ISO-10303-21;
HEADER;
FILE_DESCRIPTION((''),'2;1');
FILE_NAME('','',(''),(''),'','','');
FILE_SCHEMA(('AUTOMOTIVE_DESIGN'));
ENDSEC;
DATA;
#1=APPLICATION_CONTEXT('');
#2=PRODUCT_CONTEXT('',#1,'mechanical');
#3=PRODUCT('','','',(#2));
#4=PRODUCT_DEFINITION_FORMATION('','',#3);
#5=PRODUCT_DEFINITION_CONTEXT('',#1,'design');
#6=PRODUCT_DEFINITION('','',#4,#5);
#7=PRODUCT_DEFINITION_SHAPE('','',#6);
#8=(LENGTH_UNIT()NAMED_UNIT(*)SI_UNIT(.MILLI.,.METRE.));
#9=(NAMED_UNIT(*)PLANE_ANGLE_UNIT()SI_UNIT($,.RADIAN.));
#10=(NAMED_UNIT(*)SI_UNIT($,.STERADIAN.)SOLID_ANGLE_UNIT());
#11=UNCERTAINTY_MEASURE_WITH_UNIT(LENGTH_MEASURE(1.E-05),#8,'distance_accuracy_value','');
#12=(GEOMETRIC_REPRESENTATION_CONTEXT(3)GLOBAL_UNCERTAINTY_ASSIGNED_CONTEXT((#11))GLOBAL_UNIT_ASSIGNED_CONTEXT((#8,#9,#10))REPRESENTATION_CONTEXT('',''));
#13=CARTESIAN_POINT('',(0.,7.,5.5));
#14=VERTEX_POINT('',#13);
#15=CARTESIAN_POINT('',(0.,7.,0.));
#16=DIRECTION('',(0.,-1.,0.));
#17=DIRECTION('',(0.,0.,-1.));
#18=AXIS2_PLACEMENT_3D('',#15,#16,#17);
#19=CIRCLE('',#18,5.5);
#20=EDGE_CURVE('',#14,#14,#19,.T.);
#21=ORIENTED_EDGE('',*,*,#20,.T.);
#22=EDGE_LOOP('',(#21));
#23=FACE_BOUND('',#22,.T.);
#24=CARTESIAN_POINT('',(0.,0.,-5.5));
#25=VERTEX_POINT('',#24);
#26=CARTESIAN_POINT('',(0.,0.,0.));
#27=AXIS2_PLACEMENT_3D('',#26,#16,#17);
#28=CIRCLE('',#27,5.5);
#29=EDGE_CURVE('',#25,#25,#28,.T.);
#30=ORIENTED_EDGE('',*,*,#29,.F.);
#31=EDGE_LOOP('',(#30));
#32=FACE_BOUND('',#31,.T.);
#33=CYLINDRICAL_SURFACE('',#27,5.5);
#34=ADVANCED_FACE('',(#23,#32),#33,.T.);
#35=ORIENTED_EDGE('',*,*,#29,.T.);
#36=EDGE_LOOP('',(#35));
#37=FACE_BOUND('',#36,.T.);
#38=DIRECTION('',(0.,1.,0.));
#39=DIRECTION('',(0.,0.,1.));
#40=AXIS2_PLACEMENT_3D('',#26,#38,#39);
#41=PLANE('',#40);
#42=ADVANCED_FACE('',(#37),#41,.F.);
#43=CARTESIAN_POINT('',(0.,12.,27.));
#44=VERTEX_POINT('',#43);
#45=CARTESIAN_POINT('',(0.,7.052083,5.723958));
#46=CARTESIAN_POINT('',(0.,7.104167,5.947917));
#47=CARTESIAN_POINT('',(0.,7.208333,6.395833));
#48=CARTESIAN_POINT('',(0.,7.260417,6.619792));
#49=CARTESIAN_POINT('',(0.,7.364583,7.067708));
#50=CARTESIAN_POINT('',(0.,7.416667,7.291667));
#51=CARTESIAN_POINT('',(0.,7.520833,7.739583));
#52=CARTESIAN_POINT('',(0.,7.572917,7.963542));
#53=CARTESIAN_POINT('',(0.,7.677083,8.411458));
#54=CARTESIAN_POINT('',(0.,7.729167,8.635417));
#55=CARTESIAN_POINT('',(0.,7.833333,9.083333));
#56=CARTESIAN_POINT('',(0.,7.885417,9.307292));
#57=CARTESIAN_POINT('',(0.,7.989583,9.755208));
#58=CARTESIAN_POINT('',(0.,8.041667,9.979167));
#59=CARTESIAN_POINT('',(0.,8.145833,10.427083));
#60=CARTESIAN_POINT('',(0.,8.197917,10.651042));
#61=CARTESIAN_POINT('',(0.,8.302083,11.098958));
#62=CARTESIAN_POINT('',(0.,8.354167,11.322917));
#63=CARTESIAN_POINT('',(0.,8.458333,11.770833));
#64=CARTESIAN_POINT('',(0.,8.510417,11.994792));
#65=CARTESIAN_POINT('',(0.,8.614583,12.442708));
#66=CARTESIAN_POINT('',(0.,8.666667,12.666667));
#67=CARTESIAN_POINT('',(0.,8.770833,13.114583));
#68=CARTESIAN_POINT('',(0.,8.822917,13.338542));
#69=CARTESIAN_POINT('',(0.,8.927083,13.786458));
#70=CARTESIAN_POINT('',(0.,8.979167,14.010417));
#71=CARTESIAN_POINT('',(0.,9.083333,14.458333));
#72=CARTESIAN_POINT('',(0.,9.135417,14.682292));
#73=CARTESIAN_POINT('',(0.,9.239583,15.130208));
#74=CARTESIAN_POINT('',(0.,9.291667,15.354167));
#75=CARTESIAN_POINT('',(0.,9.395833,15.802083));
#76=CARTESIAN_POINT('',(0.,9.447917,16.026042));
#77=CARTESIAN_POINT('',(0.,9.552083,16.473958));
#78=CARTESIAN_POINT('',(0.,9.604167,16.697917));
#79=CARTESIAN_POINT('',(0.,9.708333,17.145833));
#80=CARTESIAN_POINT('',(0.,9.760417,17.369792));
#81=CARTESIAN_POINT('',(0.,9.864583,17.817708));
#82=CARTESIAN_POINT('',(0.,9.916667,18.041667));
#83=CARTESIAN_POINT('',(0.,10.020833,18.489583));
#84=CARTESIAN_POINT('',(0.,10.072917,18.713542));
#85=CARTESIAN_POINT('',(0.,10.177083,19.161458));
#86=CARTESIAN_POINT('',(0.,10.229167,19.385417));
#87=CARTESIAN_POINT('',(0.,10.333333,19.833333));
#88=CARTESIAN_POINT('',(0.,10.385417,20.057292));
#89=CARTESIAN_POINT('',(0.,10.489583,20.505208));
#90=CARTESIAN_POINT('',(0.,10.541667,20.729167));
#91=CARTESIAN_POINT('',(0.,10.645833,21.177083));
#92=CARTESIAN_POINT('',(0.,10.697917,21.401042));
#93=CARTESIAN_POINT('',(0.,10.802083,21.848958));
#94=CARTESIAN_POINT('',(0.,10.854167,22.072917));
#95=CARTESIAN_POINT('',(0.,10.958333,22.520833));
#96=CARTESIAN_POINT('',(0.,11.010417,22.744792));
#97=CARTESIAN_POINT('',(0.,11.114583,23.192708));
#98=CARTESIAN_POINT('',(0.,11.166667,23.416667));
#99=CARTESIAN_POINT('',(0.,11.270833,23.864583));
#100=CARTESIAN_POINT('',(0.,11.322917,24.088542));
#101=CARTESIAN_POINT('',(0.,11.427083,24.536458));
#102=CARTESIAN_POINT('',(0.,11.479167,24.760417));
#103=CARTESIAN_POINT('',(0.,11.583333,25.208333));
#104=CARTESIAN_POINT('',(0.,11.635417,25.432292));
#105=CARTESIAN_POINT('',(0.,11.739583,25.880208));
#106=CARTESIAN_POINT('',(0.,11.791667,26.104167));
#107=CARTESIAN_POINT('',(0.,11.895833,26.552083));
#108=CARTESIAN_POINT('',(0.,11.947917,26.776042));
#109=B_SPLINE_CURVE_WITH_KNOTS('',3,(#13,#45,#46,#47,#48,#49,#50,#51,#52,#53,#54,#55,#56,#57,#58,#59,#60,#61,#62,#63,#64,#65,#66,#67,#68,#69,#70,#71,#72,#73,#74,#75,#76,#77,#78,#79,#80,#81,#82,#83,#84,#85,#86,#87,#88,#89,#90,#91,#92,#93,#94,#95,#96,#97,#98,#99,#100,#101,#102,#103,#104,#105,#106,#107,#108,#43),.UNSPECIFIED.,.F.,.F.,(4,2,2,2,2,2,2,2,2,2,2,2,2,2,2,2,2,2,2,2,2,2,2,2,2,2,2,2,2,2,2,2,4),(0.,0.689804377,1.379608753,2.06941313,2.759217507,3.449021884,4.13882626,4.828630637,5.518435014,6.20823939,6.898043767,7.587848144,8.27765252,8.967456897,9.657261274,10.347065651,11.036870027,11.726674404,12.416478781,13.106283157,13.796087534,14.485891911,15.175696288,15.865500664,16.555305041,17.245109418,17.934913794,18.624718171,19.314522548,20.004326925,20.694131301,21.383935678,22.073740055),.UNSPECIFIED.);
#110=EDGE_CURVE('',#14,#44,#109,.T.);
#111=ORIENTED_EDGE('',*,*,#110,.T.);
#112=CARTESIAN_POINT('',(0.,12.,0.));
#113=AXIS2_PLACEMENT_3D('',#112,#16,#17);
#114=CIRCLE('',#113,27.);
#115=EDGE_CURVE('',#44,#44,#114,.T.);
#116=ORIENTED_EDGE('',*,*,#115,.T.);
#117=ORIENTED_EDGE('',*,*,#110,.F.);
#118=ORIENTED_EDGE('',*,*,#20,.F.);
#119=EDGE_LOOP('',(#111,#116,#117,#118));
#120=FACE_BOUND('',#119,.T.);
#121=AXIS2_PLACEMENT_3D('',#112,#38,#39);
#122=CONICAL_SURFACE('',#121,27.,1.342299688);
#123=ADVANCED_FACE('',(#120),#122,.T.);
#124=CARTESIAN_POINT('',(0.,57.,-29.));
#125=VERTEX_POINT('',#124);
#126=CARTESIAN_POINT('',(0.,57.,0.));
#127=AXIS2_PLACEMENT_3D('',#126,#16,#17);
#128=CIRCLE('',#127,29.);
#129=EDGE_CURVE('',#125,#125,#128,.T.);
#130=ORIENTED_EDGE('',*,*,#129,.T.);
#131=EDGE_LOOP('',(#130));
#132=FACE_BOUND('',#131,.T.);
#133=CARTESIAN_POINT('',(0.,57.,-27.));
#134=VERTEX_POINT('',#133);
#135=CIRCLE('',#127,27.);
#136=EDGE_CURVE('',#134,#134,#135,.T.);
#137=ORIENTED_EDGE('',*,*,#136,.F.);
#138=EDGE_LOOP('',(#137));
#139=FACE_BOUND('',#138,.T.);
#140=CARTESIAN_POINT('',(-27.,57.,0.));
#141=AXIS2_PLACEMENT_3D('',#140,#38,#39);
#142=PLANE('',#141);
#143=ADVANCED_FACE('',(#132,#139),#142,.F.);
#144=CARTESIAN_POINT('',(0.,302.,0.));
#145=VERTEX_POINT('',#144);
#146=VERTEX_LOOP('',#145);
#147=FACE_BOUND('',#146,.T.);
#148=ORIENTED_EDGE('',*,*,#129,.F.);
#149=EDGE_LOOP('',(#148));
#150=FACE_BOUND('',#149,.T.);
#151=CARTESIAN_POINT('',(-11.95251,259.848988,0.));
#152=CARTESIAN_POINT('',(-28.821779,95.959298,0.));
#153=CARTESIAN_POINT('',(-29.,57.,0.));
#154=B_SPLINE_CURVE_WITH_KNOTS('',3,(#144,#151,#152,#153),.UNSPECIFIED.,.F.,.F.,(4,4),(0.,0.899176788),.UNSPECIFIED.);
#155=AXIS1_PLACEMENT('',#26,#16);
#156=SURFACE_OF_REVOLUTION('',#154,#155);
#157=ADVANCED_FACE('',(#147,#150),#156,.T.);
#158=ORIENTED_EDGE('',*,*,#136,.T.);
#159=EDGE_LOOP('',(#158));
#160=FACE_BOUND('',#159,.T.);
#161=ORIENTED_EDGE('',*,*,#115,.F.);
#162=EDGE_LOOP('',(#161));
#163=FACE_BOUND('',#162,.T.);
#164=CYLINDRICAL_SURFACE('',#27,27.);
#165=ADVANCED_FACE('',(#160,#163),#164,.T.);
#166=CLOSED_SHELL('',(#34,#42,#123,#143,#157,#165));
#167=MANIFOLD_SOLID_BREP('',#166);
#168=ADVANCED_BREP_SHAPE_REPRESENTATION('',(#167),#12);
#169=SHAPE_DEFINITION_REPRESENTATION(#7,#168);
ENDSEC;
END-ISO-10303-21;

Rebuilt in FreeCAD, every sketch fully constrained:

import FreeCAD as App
import Part
import Sketcher

V = App.Vector

doc = App.newDocument("Part")
body = doc.addObject("PartDesign::Body", "Body")

# Sketch on XY plane
sketch1 = body.newObject("Sketcher::SketchObject", "Sketch")
sketch1.AttachmentSupport = (doc.getObject("XY_Plane"), [""])
sketch1.MapMode = "FlatFace"
sketch1.addGeometry(Part.LineSegment(V(-5.5, 0, 0), V(0, 0, 0)), False)
sketch1.addGeometry(Part.LineSegment(V(0, 0, 0), V(0, 302, 0)), False)
sketch1.addGeometry(Part.BSplineCurve([V(-29, 57, 0), V(-28.821779, 95.959298, 0), V(-11.95251, 259.848988, 0), V(0, 302, 0)], [4, 4], [0, 0.899176788], False, 3, [1, 1, 1, 1], False), False)
sketch1.addGeometry(Part.LineSegment(V(-29, 57, 0), V(-27, 57, 0)), False)
sketch1.addGeometry(Part.LineSegment(V(-27, 57, 0), V(-27, 12, 0)), False)
sketch1.addGeometry(Part.LineSegment(V(-27, 12, 0), V(-5.5, 7, 0)), False)
sketch1.addGeometry(Part.LineSegment(V(-5.5, 7, 0), V(-5.5, 0, 0)), False)
sketch1.addConstraint(Sketcher.Constraint("Block", 2))
sketch1.addConstraint(Sketcher.Constraint("Coincident", 0, 2, 1, 1))
sketch1.addConstraint(Sketcher.Constraint("Coincident", 1, 2, 2, 2))
sketch1.addConstraint(Sketcher.Constraint("Coincident", 2, 1, 3, 1))
sketch1.addConstraint(Sketcher.Constraint("Coincident", 3, 2, 4, 1))
sketch1.addConstraint(Sketcher.Constraint("Coincident", 4, 2, 5, 1))
sketch1.addConstraint(Sketcher.Constraint("Coincident", 5, 2, 6, 1))
sketch1.addConstraint(Sketcher.Constraint("Coincident", 6, 2, 0, 1))
sketch1.addConstraint(Sketcher.Constraint("Horizontal", 0))
sketch1.addConstraint(Sketcher.Constraint("Vertical", 1))
sketch1.addConstraint(Sketcher.Constraint("Horizontal", 3))
sketch1.addConstraint(Sketcher.Constraint("Vertical", 4))
sketch1.addConstraint(Sketcher.Constraint("Vertical", 6))
sketch1.addConstraint(Sketcher.Constraint("PointOnObject", 6, 2, -1))
sketch1.addConstraint(Sketcher.Constraint("DistanceX", 3, 1, 3, 2, 2.0))
sketch1.addConstraint(Sketcher.Constraint("DistanceY", 4, 2, 4, 1, 45.0))
sketch1.addConstraint(Sketcher.Constraint("DistanceY", 6, 2, 6, 1, 7.0))
sketch1.addConstraint(Sketcher.Constraint("DistanceX", 0, 1, 0, 2, 5.5))
revolution = body.newObject("PartDesign::Revolution", "Revolution")
revolution.Profile = sketch1
revolution.ReferenceAxis = (sketch1, ["V_Axis"])
revolution.Angle = 360

doc.recompute()
